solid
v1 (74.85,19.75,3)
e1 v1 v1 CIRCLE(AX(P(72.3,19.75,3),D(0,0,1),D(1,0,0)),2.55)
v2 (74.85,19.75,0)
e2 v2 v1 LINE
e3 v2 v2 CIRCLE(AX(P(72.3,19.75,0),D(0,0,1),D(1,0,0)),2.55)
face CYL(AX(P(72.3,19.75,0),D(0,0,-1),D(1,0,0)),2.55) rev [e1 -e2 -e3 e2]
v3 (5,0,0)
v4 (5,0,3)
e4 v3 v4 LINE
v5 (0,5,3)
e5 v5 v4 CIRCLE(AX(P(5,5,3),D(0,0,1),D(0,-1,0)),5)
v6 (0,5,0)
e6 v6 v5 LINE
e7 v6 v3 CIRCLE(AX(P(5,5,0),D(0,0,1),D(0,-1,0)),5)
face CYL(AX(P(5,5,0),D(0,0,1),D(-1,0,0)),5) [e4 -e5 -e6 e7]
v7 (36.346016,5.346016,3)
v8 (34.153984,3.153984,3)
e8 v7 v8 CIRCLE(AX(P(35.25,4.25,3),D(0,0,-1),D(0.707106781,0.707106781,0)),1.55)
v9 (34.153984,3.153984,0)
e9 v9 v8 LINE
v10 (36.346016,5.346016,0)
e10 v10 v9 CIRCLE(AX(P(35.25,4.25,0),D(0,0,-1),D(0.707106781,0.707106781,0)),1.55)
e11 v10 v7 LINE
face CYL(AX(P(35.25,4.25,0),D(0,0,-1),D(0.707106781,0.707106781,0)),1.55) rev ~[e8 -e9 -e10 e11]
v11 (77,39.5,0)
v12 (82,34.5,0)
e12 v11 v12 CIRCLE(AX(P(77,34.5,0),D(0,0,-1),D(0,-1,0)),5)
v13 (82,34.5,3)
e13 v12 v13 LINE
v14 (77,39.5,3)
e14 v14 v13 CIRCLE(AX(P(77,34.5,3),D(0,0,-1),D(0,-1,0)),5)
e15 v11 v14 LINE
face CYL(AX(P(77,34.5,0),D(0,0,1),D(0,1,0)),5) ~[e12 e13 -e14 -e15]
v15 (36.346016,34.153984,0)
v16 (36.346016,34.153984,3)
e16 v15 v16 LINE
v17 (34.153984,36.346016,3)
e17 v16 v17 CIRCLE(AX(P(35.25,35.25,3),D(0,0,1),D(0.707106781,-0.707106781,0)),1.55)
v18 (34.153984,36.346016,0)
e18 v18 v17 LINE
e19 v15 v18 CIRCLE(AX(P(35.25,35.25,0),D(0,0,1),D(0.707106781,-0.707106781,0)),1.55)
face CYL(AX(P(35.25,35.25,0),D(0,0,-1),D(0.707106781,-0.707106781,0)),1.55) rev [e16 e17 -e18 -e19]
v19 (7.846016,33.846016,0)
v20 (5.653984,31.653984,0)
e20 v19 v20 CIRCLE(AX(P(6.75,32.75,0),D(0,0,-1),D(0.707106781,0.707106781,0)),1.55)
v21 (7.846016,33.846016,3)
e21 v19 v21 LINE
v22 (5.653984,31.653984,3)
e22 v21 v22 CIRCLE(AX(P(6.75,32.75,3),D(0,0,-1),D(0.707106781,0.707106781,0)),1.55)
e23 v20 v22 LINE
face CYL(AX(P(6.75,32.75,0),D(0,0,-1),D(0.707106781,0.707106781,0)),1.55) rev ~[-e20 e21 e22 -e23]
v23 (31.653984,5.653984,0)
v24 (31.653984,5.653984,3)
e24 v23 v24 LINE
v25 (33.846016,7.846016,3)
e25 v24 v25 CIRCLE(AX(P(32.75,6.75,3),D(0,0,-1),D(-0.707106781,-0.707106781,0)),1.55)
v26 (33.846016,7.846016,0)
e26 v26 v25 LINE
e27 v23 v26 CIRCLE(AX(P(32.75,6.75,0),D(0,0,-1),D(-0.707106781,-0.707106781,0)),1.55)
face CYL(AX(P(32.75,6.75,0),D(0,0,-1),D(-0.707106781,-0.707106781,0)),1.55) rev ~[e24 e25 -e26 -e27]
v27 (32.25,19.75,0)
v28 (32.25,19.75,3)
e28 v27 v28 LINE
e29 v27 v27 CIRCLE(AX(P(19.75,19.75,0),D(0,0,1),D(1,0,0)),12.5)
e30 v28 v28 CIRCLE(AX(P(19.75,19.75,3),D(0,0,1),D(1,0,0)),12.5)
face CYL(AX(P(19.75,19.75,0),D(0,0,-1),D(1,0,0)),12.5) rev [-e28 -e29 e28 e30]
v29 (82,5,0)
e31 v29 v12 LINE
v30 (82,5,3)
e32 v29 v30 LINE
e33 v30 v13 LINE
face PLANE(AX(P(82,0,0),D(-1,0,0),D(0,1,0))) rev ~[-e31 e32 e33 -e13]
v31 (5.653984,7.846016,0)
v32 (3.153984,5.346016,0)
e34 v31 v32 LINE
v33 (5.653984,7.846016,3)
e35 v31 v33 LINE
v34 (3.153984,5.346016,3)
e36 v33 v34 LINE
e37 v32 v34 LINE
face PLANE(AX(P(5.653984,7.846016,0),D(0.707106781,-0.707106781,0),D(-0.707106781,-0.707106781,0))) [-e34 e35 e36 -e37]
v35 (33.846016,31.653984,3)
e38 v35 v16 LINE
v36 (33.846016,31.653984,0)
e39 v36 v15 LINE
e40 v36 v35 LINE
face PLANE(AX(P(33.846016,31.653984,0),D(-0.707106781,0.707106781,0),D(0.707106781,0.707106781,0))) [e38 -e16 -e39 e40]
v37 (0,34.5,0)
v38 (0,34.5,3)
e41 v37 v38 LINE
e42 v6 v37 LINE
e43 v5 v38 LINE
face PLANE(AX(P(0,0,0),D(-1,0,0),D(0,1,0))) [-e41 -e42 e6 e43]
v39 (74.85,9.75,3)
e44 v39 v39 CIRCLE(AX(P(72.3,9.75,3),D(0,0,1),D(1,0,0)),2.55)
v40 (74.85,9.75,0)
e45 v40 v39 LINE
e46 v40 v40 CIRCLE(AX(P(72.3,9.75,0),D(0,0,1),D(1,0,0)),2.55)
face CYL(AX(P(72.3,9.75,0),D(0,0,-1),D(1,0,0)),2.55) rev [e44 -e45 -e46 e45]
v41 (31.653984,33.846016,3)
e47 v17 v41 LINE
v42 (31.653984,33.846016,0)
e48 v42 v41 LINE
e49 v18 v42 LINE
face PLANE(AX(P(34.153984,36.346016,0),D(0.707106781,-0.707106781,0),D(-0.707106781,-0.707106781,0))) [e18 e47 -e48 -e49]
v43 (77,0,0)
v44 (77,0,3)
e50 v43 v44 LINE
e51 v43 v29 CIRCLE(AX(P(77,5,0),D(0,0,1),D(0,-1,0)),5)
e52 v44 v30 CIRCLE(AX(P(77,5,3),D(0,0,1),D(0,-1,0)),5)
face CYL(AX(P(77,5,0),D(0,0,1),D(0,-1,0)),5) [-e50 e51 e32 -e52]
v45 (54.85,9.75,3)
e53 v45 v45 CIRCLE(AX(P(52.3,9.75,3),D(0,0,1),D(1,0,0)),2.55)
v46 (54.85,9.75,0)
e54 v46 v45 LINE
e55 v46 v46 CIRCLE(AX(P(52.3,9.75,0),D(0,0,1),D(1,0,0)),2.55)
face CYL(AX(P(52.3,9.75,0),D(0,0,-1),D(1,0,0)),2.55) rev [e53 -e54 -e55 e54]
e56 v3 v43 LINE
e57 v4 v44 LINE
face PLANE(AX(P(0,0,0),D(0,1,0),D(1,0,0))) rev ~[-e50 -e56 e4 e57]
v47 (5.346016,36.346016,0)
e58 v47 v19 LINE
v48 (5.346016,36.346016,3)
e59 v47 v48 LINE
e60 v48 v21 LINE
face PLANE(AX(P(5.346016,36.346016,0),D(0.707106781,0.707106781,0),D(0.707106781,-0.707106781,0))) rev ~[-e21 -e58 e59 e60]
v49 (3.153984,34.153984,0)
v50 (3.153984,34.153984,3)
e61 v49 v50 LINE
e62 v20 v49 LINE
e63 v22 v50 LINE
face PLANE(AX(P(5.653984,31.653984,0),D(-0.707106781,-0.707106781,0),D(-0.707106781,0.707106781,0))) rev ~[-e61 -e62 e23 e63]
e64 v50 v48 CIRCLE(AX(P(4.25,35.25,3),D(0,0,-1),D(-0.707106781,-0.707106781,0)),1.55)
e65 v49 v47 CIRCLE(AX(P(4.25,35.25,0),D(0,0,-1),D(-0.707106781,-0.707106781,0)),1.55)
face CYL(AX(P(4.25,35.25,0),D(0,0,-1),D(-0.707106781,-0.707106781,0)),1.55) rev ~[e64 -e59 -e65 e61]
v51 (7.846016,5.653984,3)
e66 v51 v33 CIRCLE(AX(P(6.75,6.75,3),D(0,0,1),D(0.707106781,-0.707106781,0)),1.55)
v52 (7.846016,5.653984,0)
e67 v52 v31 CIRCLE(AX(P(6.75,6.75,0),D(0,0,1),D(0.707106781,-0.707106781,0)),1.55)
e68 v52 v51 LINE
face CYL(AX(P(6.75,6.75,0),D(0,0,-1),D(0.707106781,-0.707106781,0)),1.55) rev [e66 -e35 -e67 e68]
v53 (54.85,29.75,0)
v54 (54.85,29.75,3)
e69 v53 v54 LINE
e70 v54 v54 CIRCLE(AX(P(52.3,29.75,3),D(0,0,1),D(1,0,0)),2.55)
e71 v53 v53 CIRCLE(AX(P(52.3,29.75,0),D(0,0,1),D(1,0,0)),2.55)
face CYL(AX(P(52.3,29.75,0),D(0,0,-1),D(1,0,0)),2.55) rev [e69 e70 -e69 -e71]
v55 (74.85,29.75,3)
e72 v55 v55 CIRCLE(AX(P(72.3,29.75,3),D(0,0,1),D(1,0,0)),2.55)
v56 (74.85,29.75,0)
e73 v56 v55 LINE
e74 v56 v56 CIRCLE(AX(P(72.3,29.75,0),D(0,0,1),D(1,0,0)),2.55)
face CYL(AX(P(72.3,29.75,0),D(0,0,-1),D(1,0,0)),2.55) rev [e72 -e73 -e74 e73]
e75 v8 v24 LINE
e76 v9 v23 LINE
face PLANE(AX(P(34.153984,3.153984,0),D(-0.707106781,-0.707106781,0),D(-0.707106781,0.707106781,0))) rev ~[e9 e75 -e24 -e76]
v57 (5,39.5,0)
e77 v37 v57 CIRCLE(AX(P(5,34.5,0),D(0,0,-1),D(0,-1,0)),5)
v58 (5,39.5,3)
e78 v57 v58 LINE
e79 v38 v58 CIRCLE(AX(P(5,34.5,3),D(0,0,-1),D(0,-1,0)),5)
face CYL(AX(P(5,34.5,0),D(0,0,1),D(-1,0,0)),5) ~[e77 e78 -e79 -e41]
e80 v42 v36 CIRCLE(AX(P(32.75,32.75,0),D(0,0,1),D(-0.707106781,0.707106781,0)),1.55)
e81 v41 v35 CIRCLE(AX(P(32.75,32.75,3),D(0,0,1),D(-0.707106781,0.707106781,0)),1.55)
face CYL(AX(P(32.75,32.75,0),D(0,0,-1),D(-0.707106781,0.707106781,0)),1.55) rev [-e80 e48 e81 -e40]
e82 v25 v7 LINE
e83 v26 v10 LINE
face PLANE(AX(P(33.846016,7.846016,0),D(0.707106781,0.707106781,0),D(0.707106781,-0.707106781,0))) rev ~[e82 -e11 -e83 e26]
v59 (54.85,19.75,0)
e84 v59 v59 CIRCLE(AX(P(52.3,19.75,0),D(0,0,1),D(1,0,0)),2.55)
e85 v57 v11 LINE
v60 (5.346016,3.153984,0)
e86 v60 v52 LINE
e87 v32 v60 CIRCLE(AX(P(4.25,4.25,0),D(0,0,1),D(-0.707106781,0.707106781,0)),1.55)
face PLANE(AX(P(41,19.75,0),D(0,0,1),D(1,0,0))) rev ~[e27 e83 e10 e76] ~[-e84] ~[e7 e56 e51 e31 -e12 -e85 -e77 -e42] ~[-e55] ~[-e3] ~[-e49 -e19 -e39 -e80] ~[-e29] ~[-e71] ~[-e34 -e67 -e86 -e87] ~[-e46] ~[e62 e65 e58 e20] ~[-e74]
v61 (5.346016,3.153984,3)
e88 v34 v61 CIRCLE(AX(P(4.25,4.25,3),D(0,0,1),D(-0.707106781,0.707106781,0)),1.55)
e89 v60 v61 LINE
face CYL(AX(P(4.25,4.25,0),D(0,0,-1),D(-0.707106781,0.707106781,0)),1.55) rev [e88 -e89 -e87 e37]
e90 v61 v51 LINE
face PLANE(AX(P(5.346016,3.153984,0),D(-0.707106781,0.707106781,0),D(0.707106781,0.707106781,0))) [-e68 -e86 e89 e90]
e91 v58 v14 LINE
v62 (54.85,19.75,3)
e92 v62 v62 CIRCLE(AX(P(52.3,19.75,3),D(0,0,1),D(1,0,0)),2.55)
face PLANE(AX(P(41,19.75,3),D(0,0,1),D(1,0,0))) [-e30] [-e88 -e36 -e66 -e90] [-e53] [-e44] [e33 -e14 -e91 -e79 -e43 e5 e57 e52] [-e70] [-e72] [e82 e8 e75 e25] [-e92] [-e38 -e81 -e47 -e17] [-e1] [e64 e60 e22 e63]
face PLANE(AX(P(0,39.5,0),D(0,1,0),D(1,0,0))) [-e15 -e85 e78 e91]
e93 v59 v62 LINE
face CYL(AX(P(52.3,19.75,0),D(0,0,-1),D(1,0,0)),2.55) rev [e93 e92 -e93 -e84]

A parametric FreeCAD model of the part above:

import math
import FreeCAD as App
import Part
import Sketcher
from FreeCAD import Vector
Q = App.Units.Quantity


def edges_at(feature, points):
    """Names of the edges that pass closest to the given points."""
    edges = feature.Shape.Edges
    near = lambda p: min(range(len(edges)), key=lambda i: edges[i].distToShape(Part.Vertex(*p))[0])
    return sorted({f"Edge{near(p) + 1}" for p in points})

doc = App.newDocument("Part")
body = doc.addObject("PartDesign::Body", "Body")

# Sketch on XY plane
sketch1 = doc.addObject("Sketcher::SketchObject", "Sketch")
body.addObject(sketch1)
sketch1.AttachmentSupport = (doc.XY_Plane, [""])
sketch1.MapMode = "FlatFace"
sketch1.addGeometry([
    Part.LineSegment(Vector(0, 39.5, 0), Vector(0, 0, 0)),  # 0
    Part.LineSegment(Vector(0, 0, 0), Vector(82, 0, 0)),  # 1
    Part.LineSegment(Vector(82, 0, 0), Vector(82, 39.5, 0)),  # 2
    Part.LineSegment(Vector(82, 39.5, 0), Vector(0, 39.5, 0)),  # 3
    Part.LineSegment(Vector(7.8, 5.7, 0), Vector(5.3, 3.2, 0)),  # 4
    Part.ArcOfCircle(Part.Circle(Vector(4.2, 4.2, 0), Vector(0, 0, 1), 1.6), math.radians(135), math.radians(315)),  # 5
    Part.LineSegment(Vector(3.2, 5.3, 0), Vector(5.7, 7.8, 0)),  # 6
    Part.ArcOfCircle(Part.Circle(Vector(6.8, 6.8, 0), Vector(0, 0, 1), 1.6), math.radians(-45), math.radians(135)),  # 7
    Part.ArcOfCircle(Part.Circle(Vector(35.2, 4.2, 0), Vector(0, 0, 1), 1.6), math.radians(-135), math.radians(45)),  # 8
    Part.LineSegment(Vector(34.2, 3.2, 0), Vector(31.7, 5.7, 0)),  # 9
    Part.ArcOfCircle(Part.Circle(Vector(32.8, 6.8, 0), Vector(0, 0, 1), 1.6), math.radians(45), math.radians(225)),  # 10
    Part.LineSegment(Vector(33.8, 7.8, 0), Vector(36.3, 5.3, 0)),  # 11
    Part.Circle(Vector(52.3, 9.8, 0), Vector(0, 0, 1), 2.5),  # 12
    Part.Circle(Vector(72.3, 9.8, 0), Vector(0, 0, 1), 2.5),  # 13
    Part.Circle(Vector(19.8, 19.8, 0), Vector(0, 0, 1), 12.5),  # 14
    Part.ArcOfCircle(Part.Circle(Vector(4.2, 35.2, 0), Vector(0, 0, 1), 1.6), math.radians(45), math.radians(225)),  # 15
    Part.LineSegment(Vector(5.3, 36.3, 0), Vector(7.8, 33.8, 0)),  # 16
    Part.ArcOfCircle(Part.Circle(Vector(6.8, 32.8, 0), Vector(0, 0, 1), 1.6), math.radians(-135), math.radians(45)),  # 17
    Part.LineSegment(Vector(5.7, 31.7, 0), Vector(3.2, 34.2, 0)),  # 18
    Part.LineSegment(Vector(31.7, 33.8, 0), Vector(34.2, 36.3, 0)),  # 19
    Part.ArcOfCircle(Part.Circle(Vector(35.2, 35.2, 0), Vector(0, 0, 1), 1.6), math.radians(-45), math.radians(135)),  # 20
    Part.LineSegment(Vector(36.3, 34.2, 0), Vector(33.8, 31.7, 0)),  # 21
    Part.ArcOfCircle(Part.Circle(Vector(32.8, 32.8, 0), Vector(0, 0, 1), 1.6), math.radians(135), math.radians(315)),  # 22
    Part.Circle(Vector(52.3, 19.8, 0), Vector(0, 0, 1), 2.5),  # 23
    Part.Circle(Vector(72.3, 19.8, 0), Vector(0, 0, 1), 2.5),  # 24
    Part.Circle(Vector(52.3, 29.8, 0), Vector(0, 0, 1), 2.5),  # 25
    Part.Circle(Vector(72.3, 29.8, 0), Vector(0, 0, 1), 2.5),  # 26
], False)
sketch1.addConstraint([
    Sketcher.Constraint("Coincident", 0, 2, 1, 1),
    Sketcher.Constraint("Coincident", 1, 2, 2, 1),
    Sketcher.Constraint("Coincident", 2, 2, 3, 1),
    Sketcher.Constraint("Coincident", 3, 2, 0, 1),
    Sketcher.Constraint("Tangent", 4, 2, 5, 2),
    Sketcher.Constraint("Tangent", 5, 1, 6, 1),
    Sketcher.Constraint("Tangent", 6, 2, 7, 2),
    Sketcher.Constraint("Tangent", 7, 1, 4, 1),
    Sketcher.Constraint("Tangent", 8, 1, 9, 1),
    Sketcher.Constraint("Tangent", 9, 2, 10, 2),
    Sketcher.Constraint("Tangent", 10, 1, 11, 1),
    Sketcher.Constraint("Tangent", 11, 2, 8, 2),
    Sketcher.Constraint("Tangent", 15, 1, 16, 1),
    Sketcher.Constraint("Tangent", 16, 2, 17, 2),
    Sketcher.Constraint("Tangent", 17, 1, 18, 1),
    Sketcher.Constraint("Tangent", 18, 2, 15, 2),
    Sketcher.Constraint("Tangent", 19, 2, 20, 2),
    Sketcher.Constraint("Tangent", 20, 1, 21, 1),
    Sketcher.Constraint("Tangent", 21, 2, 22, 2),
    Sketcher.Constraint("Tangent", 22, 1, 19, 1),
    Sketcher.Constraint("Vertical", 0),
    Sketcher.Constraint("Horizontal", 1),
    Sketcher.Constraint("Vertical", 2),
    Sketcher.Constraint("Horizontal", 3),
    Sketcher.Constraint("Coincident", 0, 2, -1, 1),
    Sketcher.Constraint("Equal", 5, 7),
    Sketcher.Constraint("Equal", 7, 8),
    Sketcher.Constraint("Equal", 8, 10),
    Sketcher.Constraint("Equal", 12, 13),
    Sketcher.Constraint("Equal", 10, 15),
    Sketcher.Constraint("Equal", 15, 17),
    Sketcher.Constraint("Equal", 17, 20),
    Sketcher.Constraint("Equal", 20, 22),
    Sketcher.Constraint("Equal", 13, 23),
    Sketcher.Constraint("Equal", 23, 24),
    Sketcher.Constraint("Equal", 24, 25),
    Sketcher.Constraint("Equal", 25, 26),
    Sketcher.Constraint("Perpendicular", 6, 9),
    Sketcher.Constraint("Parallel", 11, 16),
    Sketcher.Constraint("Perpendicular", 18, 19),
    Sketcher.Constraint("Horizontal", 5, 3, 8, 3),
    Sketcher.Constraint("Horizontal", 7, 3, 10, 3),
    Sketcher.Constraint("Horizontal", 12, 3, 13, 3),
    Sketcher.Constraint("Horizontal", 15, 3, 20, 3),
    Sketcher.Constraint("Horizontal", 17, 3, 22, 3),
    Sketcher.Constraint("Horizontal", 14, 3, 23, 3),
    Sketcher.Constraint("Horizontal", 23, 3, 24, 3),
    Sketcher.Constraint("Horizontal", 25, 3, 26, 3),
    Sketcher.Constraint("Horizontal", 4, 2, 8, 1),
    Sketcher.Constraint("Vertical", 5, 3, 15, 3),
    Sketcher.Constraint("Vertical", 7, 3, 17, 3),
    Sketcher.Constraint("Vertical", 8, 3, 20, 3),
    Sketcher.Constraint("Vertical", 12, 3, 23, 3),
    Sketcher.Constraint("Vertical", 13, 3, 24, 3),
    Sketcher.Constraint("Vertical", 23, 3, 25, 3),
    Sketcher.Constraint("Vertical", 24, 3, 26, 3),
    Sketcher.Constraint("Diameter", 14, Q("25 mm")),
    Sketcher.Constraint("Diameter", 12, Q("5.1 mm")),
    Sketcher.Constraint("DistanceX", 1, 1, 1, 2, Q("82 mm")),
    Sketcher.Constraint("Radius", 5, Q("1.55 mm")),
    Sketcher.Constraint("DistanceY", 0, 2, 0, 1, Q("39.5 mm")),
    Sketcher.Constraint("DistanceX", 5, 3, 8, 3, Q("31 mm")),
    Sketcher.Constraint("DistanceX", 7, 3, 10, 3, Q("26 mm")),
    Sketcher.Constraint("DistanceY", 10, 3, 12, 3, Q("3 mm")),
    Sketcher.Constraint("DistanceX", 12, 3, 13, 3, Q("20 mm")),
    Sketcher.Constraint("DistanceX", 7, 3, 14, 3, Q("13 mm")),
    Sketcher.Constraint("DistanceY", 7, 3, 14, 3, Q("13 mm")),
    Sketcher.Constraint("DistanceY", 5, 3, 15, 3, Q("31 mm")),
    Sketcher.Constraint("DistanceY", 23, 3, 25, 3, Q("10 mm")),
    Sketcher.Constraint("DistanceX", -1, 1, 12, 3, Q("52.3 mm")),
    Sketcher.Constraint("DistanceX", -1, 1, 5, 3, Q("4.25 mm")),
    Sketcher.Constraint("DistanceY", -1, 1, 5, 3, Q("4.25 mm")),
])
pad1 = doc.addObject("PartDesign::Pad", "Pad")
body.addObject(pad1)
pad1.Profile = sketch1
pad1.Length = 3
doc.recompute()

fillet = doc.addObject("PartDesign::Fillet", "Fillet")
body.addObject(fillet)
fillet.Base = (pad1, edges_at(pad1, [
    (0, 39.5, 1.5),
    (82, 39.5, 1.5),
    (82, 0, 1.5),
    (0, 0, 1.5),
]))
fillet.Radius = 5

doc.recompute()
